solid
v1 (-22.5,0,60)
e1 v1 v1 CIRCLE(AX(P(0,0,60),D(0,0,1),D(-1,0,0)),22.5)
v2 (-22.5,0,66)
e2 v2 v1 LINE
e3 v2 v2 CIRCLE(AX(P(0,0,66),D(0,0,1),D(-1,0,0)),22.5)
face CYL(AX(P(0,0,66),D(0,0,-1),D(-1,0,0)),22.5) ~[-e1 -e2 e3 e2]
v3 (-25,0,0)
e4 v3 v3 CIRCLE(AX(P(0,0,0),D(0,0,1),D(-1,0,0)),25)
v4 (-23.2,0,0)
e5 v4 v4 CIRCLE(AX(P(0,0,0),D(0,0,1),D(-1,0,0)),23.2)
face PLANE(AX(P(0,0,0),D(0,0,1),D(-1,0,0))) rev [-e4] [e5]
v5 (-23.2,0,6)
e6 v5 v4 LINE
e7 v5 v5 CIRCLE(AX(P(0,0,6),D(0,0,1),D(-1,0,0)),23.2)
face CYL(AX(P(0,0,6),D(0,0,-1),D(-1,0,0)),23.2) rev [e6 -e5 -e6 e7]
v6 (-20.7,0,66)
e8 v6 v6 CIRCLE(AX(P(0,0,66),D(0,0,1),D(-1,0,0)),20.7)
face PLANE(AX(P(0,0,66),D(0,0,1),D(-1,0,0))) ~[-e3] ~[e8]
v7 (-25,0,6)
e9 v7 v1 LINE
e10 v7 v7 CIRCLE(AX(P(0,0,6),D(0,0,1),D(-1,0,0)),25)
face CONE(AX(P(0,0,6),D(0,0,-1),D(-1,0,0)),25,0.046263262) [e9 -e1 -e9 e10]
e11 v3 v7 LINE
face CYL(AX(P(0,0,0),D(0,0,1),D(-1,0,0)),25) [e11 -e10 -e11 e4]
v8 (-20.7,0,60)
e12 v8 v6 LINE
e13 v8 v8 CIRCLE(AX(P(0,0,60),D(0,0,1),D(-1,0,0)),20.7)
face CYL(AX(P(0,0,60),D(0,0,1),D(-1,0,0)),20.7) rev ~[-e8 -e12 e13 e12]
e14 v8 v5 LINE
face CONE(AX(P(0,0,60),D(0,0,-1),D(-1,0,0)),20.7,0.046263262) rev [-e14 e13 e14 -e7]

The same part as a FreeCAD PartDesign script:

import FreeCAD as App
import Part
import Sketcher

V = App.Vector
Q = App.Units.Quantity

doc = App.newDocument("Part")
body = doc.addObject("PartDesign::Body", "Body")

sketch1 = body.newObject("Sketcher::SketchObject", "Sketch")
sketch1.AttachmentSupport = (doc.getObject("XZ_Plane"), [""])
sketch1.MapMode = "FlatFace"
sketch1.addGeometry([
    Part.LineSegment(V(-20.7, 66, 0), V(-20.7, 60, 0)),
    Part.LineSegment(V(-20.7, 60, 0), V(-23.2, 6, 0)),
    Part.LineSegment(V(-23.2, 6, 0), V(-23.2, 0, 0)),
    Part.LineSegment(V(-23.2, 0, 0), V(-25, 0, 0)),
    Part.LineSegment(V(-25, 0, 0), V(-25, 6, 0)),
    Part.LineSegment(V(-25, 6, 0), V(-22.5, 60, 0)),
    Part.LineSegment(V(-22.5, 60, 0), V(-22.5, 66, 0)),
    Part.LineSegment(V(-22.5, 66, 0), V(-20.7, 66, 0)),
], False)
sketch1.addConstraint([
    Sketcher.Constraint("Coincident", 0, 2, 1, 1),
    Sketcher.Constraint("Coincident", 1, 2, 2, 1),
    Sketcher.Constraint("Coincident", 2, 2, 3, 1),
    Sketcher.Constraint("Coincident", 3, 2, 4, 1),
    Sketcher.Constraint("Coincident", 4, 2, 5, 1),
    Sketcher.Constraint("Coincident", 5, 2, 6, 1),
    Sketcher.Constraint("Coincident", 6, 2, 7, 1),
    Sketcher.Constraint("Coincident", 7, 2, 0, 1),
    Sketcher.Constraint("Vertical", 0),
    Sketcher.Constraint("Vertical", 2),
    Sketcher.Constraint("Horizontal", 3),
    Sketcher.Constraint("Vertical", 4),
    Sketcher.Constraint("Vertical", 6),
    Sketcher.Constraint("Horizontal", 7),
    Sketcher.Constraint("PointOnObject", 2, 2, -1),
    Sketcher.Constraint("Parallel", 1, 5),
    Sketcher.Constraint("Horizontal", 1, 2, 4, 2),
    Sketcher.Constraint("Horizontal", 0, 2, 5, 2),
    Sketcher.Constraint("Equal", 0, 2),
    Sketcher.Constraint("DistanceY", 0, 2, 0, 1, Q("6 mm")),
    Sketcher.Constraint("DistanceX", 3, 2, 3, 1, Q("1.8 mm")),
    Sketcher.Constraint("DistanceX", 3, 2, -1, 1, Q("25 mm")),
    Sketcher.Constraint("DistanceY", -1, 1, 6, 2, Q("66 mm")),
    Sketcher.Constraint("DistanceX", 5, 2, -1, 1, Q("22.5 mm")),
])
revolution = body.newObject("PartDesign::Revolution", "Revolution")
revolution.Profile = sketch1
revolution.ReferenceAxis = (sketch1, ["V_Axis"])
revolution.Angle = 360

doc.recompute()
